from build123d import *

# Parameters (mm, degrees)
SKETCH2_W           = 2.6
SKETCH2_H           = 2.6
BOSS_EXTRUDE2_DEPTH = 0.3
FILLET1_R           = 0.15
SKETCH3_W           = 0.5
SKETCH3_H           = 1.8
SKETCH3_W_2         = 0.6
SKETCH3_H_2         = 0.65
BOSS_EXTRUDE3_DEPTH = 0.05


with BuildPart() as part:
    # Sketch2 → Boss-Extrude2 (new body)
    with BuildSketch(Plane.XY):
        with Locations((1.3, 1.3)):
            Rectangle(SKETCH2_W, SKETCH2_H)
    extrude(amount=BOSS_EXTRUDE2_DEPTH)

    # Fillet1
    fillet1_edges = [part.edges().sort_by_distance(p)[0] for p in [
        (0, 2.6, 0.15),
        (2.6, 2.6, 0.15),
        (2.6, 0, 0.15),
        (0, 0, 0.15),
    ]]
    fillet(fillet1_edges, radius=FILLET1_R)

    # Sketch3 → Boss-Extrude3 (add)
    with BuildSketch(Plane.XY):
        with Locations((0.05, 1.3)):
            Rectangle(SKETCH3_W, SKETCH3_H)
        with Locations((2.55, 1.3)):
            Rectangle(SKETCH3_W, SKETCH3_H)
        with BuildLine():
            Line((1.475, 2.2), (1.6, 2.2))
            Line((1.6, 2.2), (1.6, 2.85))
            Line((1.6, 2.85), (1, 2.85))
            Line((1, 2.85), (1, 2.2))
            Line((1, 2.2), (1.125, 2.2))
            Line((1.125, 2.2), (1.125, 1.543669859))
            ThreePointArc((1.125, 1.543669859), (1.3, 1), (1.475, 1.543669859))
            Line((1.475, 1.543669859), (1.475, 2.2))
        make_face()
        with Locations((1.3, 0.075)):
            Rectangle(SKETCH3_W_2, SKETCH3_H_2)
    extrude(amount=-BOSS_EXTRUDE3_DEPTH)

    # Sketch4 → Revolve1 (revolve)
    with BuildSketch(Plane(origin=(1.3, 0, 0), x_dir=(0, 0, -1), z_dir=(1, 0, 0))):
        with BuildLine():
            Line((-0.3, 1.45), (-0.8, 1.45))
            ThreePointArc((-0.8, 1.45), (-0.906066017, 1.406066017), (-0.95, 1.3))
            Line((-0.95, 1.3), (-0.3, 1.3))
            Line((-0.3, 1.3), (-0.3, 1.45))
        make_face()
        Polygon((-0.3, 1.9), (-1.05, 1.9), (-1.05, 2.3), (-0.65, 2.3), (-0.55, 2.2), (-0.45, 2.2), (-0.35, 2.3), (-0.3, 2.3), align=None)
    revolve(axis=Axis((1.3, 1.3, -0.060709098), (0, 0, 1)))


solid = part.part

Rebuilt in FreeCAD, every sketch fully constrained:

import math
import FreeCAD as App
import Part
import Sketcher
from FreeCAD import Vector
Q = App.Units.Quantity


def edges_at(feature, points):
    """Names of the edges that pass closest to the given points."""
    edges = feature.Shape.Edges
    near = lambda p: min(range(len(edges)), key=lambda i: edges[i].distToShape(Part.Vertex(*p))[0])
    return sorted({f"Edge{near(p) + 1}" for p in points})


def add_polygon(sketch, points):
    """Adds a closed chain of lines whose ends are joined by coincident constraints."""
    first, n = sketch.GeometryCount, len(points)
    for a, b in zip(points, points[1:] + points[:1]):
        sketch.addGeometry(Part.LineSegment(App.Vector(*a, 0), App.Vector(*b, 0)), False)
    for i in range(n):
        sketch.addConstraint(Sketcher.Constraint("Coincident", first + i, 2, first + (i + 1) % n, 1))

doc = App.newDocument("Part")
params = doc.addObject("Spreadsheet::Sheet", "Params")
for row, (alias, value) in enumerate([
    ("sketch1_width", "2.6 mm"),
    ("pad1_length", "0.3 mm"),
    ("fillet_radius", "0.15 mm"),
    ("sketch2_radius", "0.3 mm"),
    ("sketch2_width", "0.5 mm"),
    ("sketch2_width2", "0.6 mm"),
    ("sketch2_height", "1.8 mm"),
    ("sketch2_height2", "0.65 mm"),
    ("pad2_length", "0.05 mm"),
    ("sketch3_radius", "0.15 mm"),
    ("sketch3_width", "0.4 mm"),
    ("sketch3_height", "0.5 mm"),
    ("sketch3_height2", "0.1 mm"),
    ("sketch3_height3", "0.75 mm"),
    ("revolution_angle", "360 deg"),
], start=1):
    params.set(f"A{row}", alias)
    params.set(f"B{row}", "=" + value)
    params.setAlias(f"B{row}", alias)

body = doc.addObject("PartDesign::Body", "Body")

sketch1 = doc.addObject("Sketcher::SketchObject", "Sketch")
body.addObject(sketch1)
sketch1.AttachmentSupport = (doc.XY_Plane, [""])
sketch1.MapMode = "FlatFace"
add_polygon(sketch1, [(0, 2.6), (0, 0), (2.6, 0), (2.6, 2.6)])
sketch1.addConstraint([
    Sketcher.Constraint("Vertical", 0),
    Sketcher.Constraint("Horizontal", 1),
    Sketcher.Constraint("Vertical", 2),
    Sketcher.Constraint("Horizontal", 3),
    Sketcher.Constraint("Coincident", 0, 2, -1, 1),
    Sketcher.Constraint("Equal", 3, 0),
    Sketcher.Constraint("DistanceX", 1, 1, 1, 2, Q("2.6 mm")),
])
sketch1.setExpression("Constraints[10]", "Params.sketch1_width")
pad1 = doc.addObject("PartDesign::Pad", "Pad")
body.addObject(pad1)
pad1.Profile = sketch1
pad1.setExpression("Length", "Params.pad1_length")
doc.recompute()

fillet = doc.addObject("PartDesign::Fillet", "Fillet")
body.addObject(fillet)
fillet.Base = (pad1, edges_at(pad1, [
    (0, 2.6, 0.15),
    (2.6, 2.6, 0.15),
    (2.6, 0, 0.15),
    (0, 0, 0.15),
]))
fillet.setExpression("Radius", "Params.fillet_radius")

sketch2 = doc.addObject("Sketcher::SketchObject", "Sketch001")
body.addObject(sketch2)
sketch2.AttachmentSupport = (doc.XY_Plane, [""])
sketch2.MapMode = "FlatFace"
add_polygon(sketch2, [(-0.2, 2.2), (-0.2, 0.4), (0.3, 0.4), (0.3, 2.2)])
add_polygon(sketch2, [(2.3, 2.2), (2.3, 0.4), (2.8, 0.4), (2.8, 2.2)])
sketch2.addGeometry(Part.LineSegment(Vector(1.48, 2.2, 0), Vector(1.6, 2.2, 0)), False)
sketch2.addGeometry(Part.LineSegment(Vector(1.6, 2.2, 0), Vector(1.6, 2.85, 0)), False)
sketch2.addGeometry(Part.LineSegment(Vector(1.6, 2.85, 0), Vector(1, 2.85, 0)), False)
sketch2.addGeometry(Part.LineSegment(Vector(1, 2.85, 0), Vector(1, 2.2, 0)), False)
sketch2.addGeometry(Part.LineSegment(Vector(1, 2.2, 0), Vector(1.12, 2.2, 0)), False)
sketch2.addGeometry(Part.LineSegment(Vector(1.12, 2.2, 0), Vector(1.12, 1.54, 0)), False)
sketch2.addGeometry(Part.ArcOfCircle(Part.Circle(Vector(1.3, 1.3, 0), Vector(0, 0, 1), 0.3), math.radians(126), math.radians(414)), False)
sketch2.addGeometry(Part.LineSegment(Vector(1.48, 1.54, 0), Vector(1.48, 2.2, 0)), False)
add_polygon(sketch2, [(1, 0.4), (1, -0.25), (1.6, -0.25), (1.6, 0.4)])
sketch2.addConstraint([
    Sketcher.Constraint("Coincident", 8, 2, 9, 1),
    Sketcher.Constraint("Coincident", 9, 2, 10, 1),
    Sketcher.Constraint("Coincident", 10, 2, 11, 1),
    Sketcher.Constraint("Coincident", 11, 2, 12, 1),
    Sketcher.Constraint("Coincident", 12, 2, 13, 1),
    Sketcher.Constraint("Coincident", 13, 2, 14, 1),
    Sketcher.Constraint("Coincident", 14, 2, 15, 1),
    Sketcher.Constraint("Coincident", 15, 2, 8, 1),
    Sketcher.Constraint("Vertical", 0),
    Sketcher.Constraint("Horizontal", 1),
    Sketcher.Constraint("Vertical", 2),
    Sketcher.Constraint("Horizontal", 3),
    Sketcher.Constraint("Vertical", 4),
    Sketcher.Constraint("Horizontal", 5),
    Sketcher.Constraint("Vertical", 6),
    Sketcher.Constraint("Horizontal", 7),
    Sketcher.Constraint("Horizontal", 8),
    Sketcher.Constraint("Vertical", 9),
    Sketcher.Constraint("Horizontal", 10),
    Sketcher.Constraint("Vertical", 11),
    Sketcher.Constraint("Horizontal", 12),
    Sketcher.Constraint("Vertical", 13),
    Sketcher.Constraint("Vertical", 15),
    Sketcher.Constraint("Vertical", 16),
    Sketcher.Constraint("Horizontal", 17),
    Sketcher.Constraint("Vertical", 18),
    Sketcher.Constraint("Horizontal", 19),
    Sketcher.Constraint("Horizontal", 1, 2, 4, 2),
    Sketcher.Constraint("Horizontal", 3, 2, 6, 2),
    Sketcher.Constraint("Horizontal", 7, 2, 8, 2),
    Sketcher.Constraint("Horizontal", 8, 2, 11, 2),
    Sketcher.Constraint("Horizontal", 13, 2, 14, 2),
    Sketcher.Constraint("Horizontal", 5, 2, 18, 2),
    Sketcher.Constraint("Vertical", 11, 2, 16, 2),
    Sketcher.Constraint("Vertical", 9, 2, 17, 2),
    Sketcher.Constraint("Equal", 3, 5),
    Sketcher.Constraint("Equal", 8, 12),
    Sketcher.Constraint("Equal", 11, 16),
    Sketcher.Constraint("Radius", 14, Q("0.3 mm")),
    Sketcher.Constraint("DistanceX", 1, 1, 1, 2, Q("0.5 mm")),
    Sketcher.Constraint("DistanceX", 10, 2, 10, 1, Q("0.6 mm")),
    Sketcher.Constraint("DistanceY", 0, 2, 0, 1, Q("1.8 mm")),
    Sketcher.Constraint("DistanceX", -1, 1, 10, 2, Q("1 mm")),
    Sketcher.Constraint("DistanceX", 1, 2, 14, 3, Q("1 mm")),
    Sketcher.Constraint("DistanceX", 14, 3, 4, 2, Q("1 mm")),
    Sketcher.Constraint("DistanceY", 9, 1, 9, 2, Q("0.65 mm")),
    Sketcher.Constraint("DistanceY", -1, 1, 14, 3, Q("1.3 mm")),
    Sketcher.Constraint("DistanceY", -1, 1, 0, 2, Q("0.4 mm")),
    Sketcher.Constraint("DistanceX", 8, 1, 8, 2, Q("0.125 mm")),
])
sketch2.setExpression("Constraints[50]", "Params.sketch2_radius")
sketch2.setExpression("Constraints[51]", "Params.sketch2_width")
sketch2.setExpression("Constraints[52]", "Params.sketch2_width2")
sketch2.setExpression("Constraints[53]", "Params.sketch2_height")
sketch2.setExpression("Constraints[57]", "Params.sketch2_height2")
pad2 = doc.addObject("PartDesign::Pad", "Pad001")
body.addObject(pad2)
pad2.Profile = sketch2
pad2.setExpression("Length", "Params.pad2_length")
pad2.Reversed = True

sketch3 = doc.addObject("Sketcher::SketchObject", "Sketch002")
body.addObject(sketch3)
sketch3.AttachmentSupport = (doc.YZ_Plane, [""])
sketch3.MapMode = "FlatFace"
sketch3.AttachmentOffset = App.Placement(Vector(0, 0, 1.3), App.Rotation())
sketch3.addGeometry(Part.LineSegment(Vector(1.45, 0.3, 0), Vector(1.45, 0.8, 0)), False)
sketch3.addGeometry(Part.ArcOfCircle(Part.Circle(Vector(1.3, 0.8, 0), Vector(0, 0, 1), 0.15), math.radians(0), math.radians(90)), False)
sketch3.addGeometry(Part.LineSegment(Vector(1.3, 0.95, 0), Vector(1.3, 0.3, 0)), False)
sketch3.addGeometry(Part.LineSegment(Vector(1.3, 0.3, 0), Vector(1.45, 0.3, 0)), False)
add_polygon(sketch3, [(1.9, 1.05), (1.9, 0.3), (2.3, 0.3), (2.3, 0.35), (2.2, 0.45), (2.2, 0.55), (2.3, 0.65), (2.3, 1.05)])
sketch3.addGeometry(Part.LineSegment(Vector(1.3, 0.3, 0), Vector(1.3, 1.05, 0)), True)
sketch3.addConstraint([
    Sketcher.Constraint("Tangent", 0, 2, 1, 1),
    Sketcher.Constraint("Coincident", 1, 2, 2, 1),
    Sketcher.Constraint("Coincident", 2, 2, 3, 1),
    Sketcher.Constraint("Coincident", 3, 2, 0, 1),
    Sketcher.Constraint("Vertical", 0),
    Sketcher.Constraint("Vertical", 2),
    Sketcher.Constraint("Horizontal", 3),
    Sketcher.Constraint("Vertical", 4),
    Sketcher.Constraint("Horizontal", 5),
    Sketcher.Constraint("Vertical", 6),
    Sketcher.Constraint("Vertical", 8),
    Sketcher.Constraint("Vertical", 10),
    Sketcher.Constraint("Horizontal", 11),
    Sketcher.Constraint("Vertical", 12),
    Sketcher.Constraint("Coincident", 12, 1, 2, 2),
    Sketcher.Constraint("Perpendicular", 7, 9),
    Sketcher.Constraint("Horizontal", 3, 2, 4, 2),
    Sketcher.Constraint("Horizontal", 11, 2, 12, 2),
    Sketcher.Constraint("Vertical", 6, 2, 9, 2),
    Sketcher.Constraint("Equal", 11, 10),
    Sketcher.Constraint("Equal", 7, 9),
    Sketcher.Constraint("Radius", 1, Q("0.15 mm")),
    Sketcher.Constraint("DistanceX", 5, 1, 5, 2, Q("0.4 mm")),
    Sketcher.Constraint("DistanceY", 0, 1, 0, 2, Q("0.5 mm")),
    Sketcher.Constraint("DistanceY", 8, 1, 8, 2, Q("0.1 mm")),
    Sketcher.Constraint("DistanceX", 2, 2, 5, 2, Q("1 mm")),
    Sketcher.Constraint("DistanceX", 1, 3, 5, 2, Q("1 mm")),
    Sketcher.Constraint("DistanceY", 4, 2, 4, 1, Q("0.75 mm")),
    Sketcher.Constraint("DistanceY", 6, 1, 6, 2, Q("0.05 mm")),
    Sketcher.Constraint("DistanceX", -1, 1, 1, 3, Q("1.3 mm")),
    Sketcher.Constraint("DistanceY", -1, 1, 1, 3, Q("0.8 mm")),
])
sketch3.setExpression("Constraints[29]", "Params.sketch3_radius")
sketch3.setExpression("Constraints[30]", "Params.sketch3_width")
sketch3.setExpression("Constraints[31]", "Params.sketch3_height")
sketch3.setExpression("Constraints[32]", "Params.sketch3_height2")
sketch3.setExpression("Constraints[35]", "Params.sketch3_height3")
revolution = doc.addObject("PartDesign::Revolution", "Revolution")
body.addObject(revolution)
revolution.Profile = sketch3
revolution.ReferenceAxis = (sketch3, ["Axis0"])
revolution.setExpression("Angle", "Params.revolution_angle")

doc.recompute()
